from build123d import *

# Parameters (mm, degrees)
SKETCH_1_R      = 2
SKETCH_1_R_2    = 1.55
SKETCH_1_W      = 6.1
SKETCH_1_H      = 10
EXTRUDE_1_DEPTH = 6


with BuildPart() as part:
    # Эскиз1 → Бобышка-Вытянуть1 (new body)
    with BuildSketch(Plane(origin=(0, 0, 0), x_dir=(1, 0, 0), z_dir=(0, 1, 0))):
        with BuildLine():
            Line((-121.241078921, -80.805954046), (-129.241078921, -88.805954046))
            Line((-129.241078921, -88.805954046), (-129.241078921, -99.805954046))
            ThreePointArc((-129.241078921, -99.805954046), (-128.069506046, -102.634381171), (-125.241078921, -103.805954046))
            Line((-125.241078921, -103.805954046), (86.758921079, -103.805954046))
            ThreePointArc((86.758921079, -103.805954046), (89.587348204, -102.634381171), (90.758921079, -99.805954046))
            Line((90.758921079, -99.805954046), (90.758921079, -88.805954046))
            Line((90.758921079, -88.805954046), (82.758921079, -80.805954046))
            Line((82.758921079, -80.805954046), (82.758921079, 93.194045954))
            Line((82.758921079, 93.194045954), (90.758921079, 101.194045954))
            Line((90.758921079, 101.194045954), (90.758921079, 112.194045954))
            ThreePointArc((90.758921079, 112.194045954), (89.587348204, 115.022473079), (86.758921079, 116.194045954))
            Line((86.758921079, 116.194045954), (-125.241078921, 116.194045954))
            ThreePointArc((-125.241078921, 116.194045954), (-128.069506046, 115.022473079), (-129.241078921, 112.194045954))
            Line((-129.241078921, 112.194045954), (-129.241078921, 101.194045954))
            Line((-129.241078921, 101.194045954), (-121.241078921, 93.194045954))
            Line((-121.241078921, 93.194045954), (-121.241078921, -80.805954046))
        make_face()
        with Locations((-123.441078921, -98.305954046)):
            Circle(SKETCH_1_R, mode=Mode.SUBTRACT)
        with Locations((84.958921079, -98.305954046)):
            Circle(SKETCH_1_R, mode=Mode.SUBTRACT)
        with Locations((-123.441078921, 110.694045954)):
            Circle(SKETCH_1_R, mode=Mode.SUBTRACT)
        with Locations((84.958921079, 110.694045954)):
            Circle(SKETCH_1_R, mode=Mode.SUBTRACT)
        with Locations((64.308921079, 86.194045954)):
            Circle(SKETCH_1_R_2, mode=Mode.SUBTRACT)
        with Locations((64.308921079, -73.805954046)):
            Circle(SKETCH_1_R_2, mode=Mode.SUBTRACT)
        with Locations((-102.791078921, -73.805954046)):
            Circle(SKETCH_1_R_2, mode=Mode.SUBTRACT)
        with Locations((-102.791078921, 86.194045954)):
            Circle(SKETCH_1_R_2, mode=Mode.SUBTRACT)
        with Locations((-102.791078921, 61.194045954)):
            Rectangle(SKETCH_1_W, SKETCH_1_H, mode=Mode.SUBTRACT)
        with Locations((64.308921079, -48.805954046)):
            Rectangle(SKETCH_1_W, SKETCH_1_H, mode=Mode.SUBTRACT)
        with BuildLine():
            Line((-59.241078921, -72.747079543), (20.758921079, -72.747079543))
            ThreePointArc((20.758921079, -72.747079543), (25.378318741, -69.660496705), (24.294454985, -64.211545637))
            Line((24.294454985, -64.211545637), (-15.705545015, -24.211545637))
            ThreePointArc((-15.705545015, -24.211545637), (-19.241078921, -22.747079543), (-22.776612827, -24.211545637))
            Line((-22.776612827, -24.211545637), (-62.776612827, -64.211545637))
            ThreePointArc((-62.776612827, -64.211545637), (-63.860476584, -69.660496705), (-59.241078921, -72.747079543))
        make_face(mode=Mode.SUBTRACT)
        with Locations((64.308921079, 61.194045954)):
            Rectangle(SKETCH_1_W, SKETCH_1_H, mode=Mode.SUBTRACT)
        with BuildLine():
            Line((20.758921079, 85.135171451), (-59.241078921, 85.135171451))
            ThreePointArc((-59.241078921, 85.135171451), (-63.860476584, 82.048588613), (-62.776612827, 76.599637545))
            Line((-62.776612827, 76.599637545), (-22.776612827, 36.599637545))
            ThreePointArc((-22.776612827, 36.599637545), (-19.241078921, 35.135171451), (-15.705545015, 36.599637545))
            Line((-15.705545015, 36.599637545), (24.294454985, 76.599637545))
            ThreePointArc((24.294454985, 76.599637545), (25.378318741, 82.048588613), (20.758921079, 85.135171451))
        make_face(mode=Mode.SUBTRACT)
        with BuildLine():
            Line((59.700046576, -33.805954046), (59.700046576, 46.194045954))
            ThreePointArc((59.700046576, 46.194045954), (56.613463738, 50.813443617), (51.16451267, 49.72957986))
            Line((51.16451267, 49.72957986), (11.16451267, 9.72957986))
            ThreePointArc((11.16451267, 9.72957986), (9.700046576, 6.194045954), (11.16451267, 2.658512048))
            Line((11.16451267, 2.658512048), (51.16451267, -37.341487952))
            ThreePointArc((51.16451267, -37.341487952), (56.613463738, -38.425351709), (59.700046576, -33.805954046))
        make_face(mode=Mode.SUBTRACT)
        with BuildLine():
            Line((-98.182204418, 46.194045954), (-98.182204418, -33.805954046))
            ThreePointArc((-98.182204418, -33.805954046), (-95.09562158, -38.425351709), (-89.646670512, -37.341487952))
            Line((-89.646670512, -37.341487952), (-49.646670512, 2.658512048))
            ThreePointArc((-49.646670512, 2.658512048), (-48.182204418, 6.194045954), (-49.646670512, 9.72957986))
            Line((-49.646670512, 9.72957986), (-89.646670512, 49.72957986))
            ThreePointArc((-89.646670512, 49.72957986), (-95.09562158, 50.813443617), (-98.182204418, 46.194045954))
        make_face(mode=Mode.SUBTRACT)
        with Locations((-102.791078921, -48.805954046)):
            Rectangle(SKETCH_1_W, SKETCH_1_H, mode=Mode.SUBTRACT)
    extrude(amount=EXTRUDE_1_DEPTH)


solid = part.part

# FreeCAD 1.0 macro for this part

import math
import FreeCAD as App
import Part
import Sketcher
from FreeCAD import Vector
Q = App.Units.Quantity


def add_polygon(sketch, points):
    """Adds a closed chain of lines whose ends are joined by coincident constraints."""
    first, n = sketch.GeometryCount, len(points)
    for a, b in zip(points, points[1:] + points[:1]):
        sketch.addGeometry(Part.LineSegment(App.Vector(*a, 0), App.Vector(*b, 0)), False)
    for i in range(n):
        sketch.addConstraint(Sketcher.Constraint("Coincident", first + i, 2, first + (i + 1) % n, 1))

doc = App.newDocument("Part")
body = doc.addObject("PartDesign::Body", "Body")

# Sketch on XZ plane
sketch1 = doc.addObject("Sketcher::SketchObject", "Sketch")
body.addObject(sketch1)
sketch1.AttachmentSupport = (doc.XZ_Plane, [""])
sketch1.MapMode = "FlatFace"
sketch1.addGeometry(Part.LineSegment(Vector(-121.2, 80.8, 0), Vector(-129.2, 88.8, 0)), False)  # 0
sketch1.addGeometry(Part.LineSegment(Vector(-129.2, 88.8, 0), Vector(-129.2, 99.8, 0)), False)  # 1
sketch1.addGeometry(Part.ArcOfCircle(Part.Circle(Vector(-125.2, 99.8, 0), Vector(0, 0, 1), 4), math.radians(90), math.radians(180)), False)  # 2
sketch1.addGeometry(Part.LineSegment(Vector(-125.2, 103.8, 0), Vector(86.8, 103.8, 0)), False)  # 3
sketch1.addGeometry(Part.ArcOfCircle(Part.Circle(Vector(86.8, 99.8, 0), Vector(0, 0, 1), 4), math.radians(0), math.radians(90)), False)  # 4
sketch1.addGeometry(Part.LineSegment(Vector(90.8, 99.8, 0), Vector(90.8, 88.8, 0)), False)  # 5
sketch1.addGeometry(Part.LineSegment(Vector(90.8, 88.8, 0), Vector(82.8, 80.8, 0)), False)  # 6
sketch1.addGeometry(Part.LineSegment(Vector(82.8, 80.8, 0), Vector(82.8, -93.2, 0)), False)  # 7
sketch1.addGeometry(Part.LineSegment(Vector(82.8, -93.2, 0), Vector(90.8, -101.2, 0)), False)  # 8
sketch1.addGeometry(Part.LineSegment(Vector(90.8, -101.2, 0), Vector(90.8, -112.2, 0)), False)  # 9
sketch1.addGeometry(Part.ArcOfCircle(Part.Circle(Vector(86.8, -112.2, 0), Vector(0, 0, 1), 4), math.radians(-90), math.radians(0)), False)  # 10
sketch1.addGeometry(Part.LineSegment(Vector(86.8, -116.2, 0), Vector(-125.2, -116.2, 0)), False)  # 11
sketch1.addGeometry(Part.ArcOfCircle(Part.Circle(Vector(-125.2, -112.2, 0), Vector(0, 0, 1), 4), math.radians(180), math.radians(270)), False)  # 12
sketch1.addGeometry(Part.LineSegment(Vector(-129.2, -112.2, 0), Vector(-129.2, -101.2, 0)), False)  # 13
sketch1.addGeometry(Part.LineSegment(Vector(-129.2, -101.2, 0), Vector(-121.2, -93.2, 0)), False)  # 14
sketch1.addGeometry(Part.LineSegment(Vector(-121.2, -93.2, 0), Vector(-121.2, 80.8, 0)), False)  # 15
sketch1.addGeometry(Part.Circle(Vector(-123.4, 98.3, 0), Vector(0, 0, 1), 2), False)  # 16
sketch1.addGeometry(Part.Circle(Vector(-102.8, 73.8, 0), Vector(0, 0, 1), 1.6), False)  # 17
add_polygon(sketch1, [(-99.7, 53.8), (-105.8, 53.8), (-105.8, 43.8), (-99.7, 43.8)])  # lines 18-21
sketch1.addGeometry(Part.LineSegment(Vector(20.8, 72.7, 0), Vector(-59.2, 72.7, 0)), False)  # 22
sketch1.addGeometry(Part.ArcOfCircle(Part.Circle(Vector(-59.2, 67.7, 0), Vector(0, 0, 1), 5), math.radians(90), math.radians(225)), False)  # 23
sketch1.addGeometry(Part.LineSegment(Vector(-62.8, 64.2, 0), Vector(-22.8, 24.2, 0)), False)  # 24
sketch1.addGeometry(Part.ArcOfCircle(Part.Circle(Vector(-19.2, 27.7, 0), Vector(0, 0, 1), 5), math.radians(-135), math.radians(-45)), False)  # 25
sketch1.addGeometry(Part.LineSegment(Vector(-15.7, 24.2, 0), Vector(24.3, 64.2, 0)), False)  # 26
sketch1.addGeometry(Part.ArcOfCircle(Part.Circle(Vector(20.8, 67.7, 0), Vector(0, 0, 1), 5), math.radians(-45), math.radians(90)), False)  # 27
sketch1.addGeometry(Part.Circle(Vector(85, 98.3, 0), Vector(0, 0, 1), 2), False)  # 28
sketch1.addGeometry(Part.Circle(Vector(64.3, 73.8, 0), Vector(0, 0, 1), 1.6), False)  # 29
add_polygon(sketch1, [(67.4, 53.8), (61.3, 53.8), (61.3, 43.8), (67.4, 43.8)])  # lines 30-33
sketch1.addGeometry(Part.LineSegment(Vector(-98.2, 33.8, 0), Vector(-98.2, -46.2, 0)), False)  # 34
sketch1.addGeometry(Part.ArcOfCircle(Part.Circle(Vector(-93.2, -46.2, 0), Vector(0, 0, 1), 5), math.radians(180), math.radians(315)), False)  # 35
sketch1.addGeometry(Part.LineSegment(Vector(-89.6, -49.7, 0), Vector(-49.6, -9.7, 0)), False)  # 36
sketch1.addGeometry(Part.ArcOfCircle(Part.Circle(Vector(-53.2, -6.2, 0), Vector(0, 0, 1), 5), math.radians(-45), math.radians(45)), False)  # 37
sketch1.addGeometry(Part.LineSegment(Vector(-49.6, -2.7, 0), Vector(-89.6, 37.3, 0)), False)  # 38
sketch1.addGeometry(Part.ArcOfCircle(Part.Circle(Vector(-93.2, 33.8, 0), Vector(0, 0, 1), 5), math.radians(45), math.radians(180)), False)  # 39
add_polygon(sketch1, [(-99.7, -56.2), (-105.8, -56.2), (-105.8, -66.2), (-99.7, -66.2)])  # lines 40-43
sketch1.addGeometry(Part.Circle(Vector(-102.8, -86.2, 0), Vector(0, 0, 1), 1.6), False)  # 44
sketch1.addGeometry(Part.Circle(Vector(-123.4, -110.7, 0), Vector(0, 0, 1), 2), False)  # 45
sketch1.addGeometry(Part.LineSegment(Vector(-59.2, -85.1, 0), Vector(20.8, -85.1, 0)), False)  # 46
sketch1.addGeometry(Part.ArcOfCircle(Part.Circle(Vector(20.8, -80.1, 0), Vector(0, 0, 1), 5), math.radians(-90), math.radians(45)), False)  # 47
sketch1.addGeometry(Part.LineSegment(Vector(24.3, -76.6, 0), Vector(-15.7, -36.6, 0)), False)  # 48
sketch1.addGeometry(Part.ArcOfCircle(Part.Circle(Vector(-19.2, -40.1, 0), Vector(0, 0, 1), 5), math.radians(45), math.radians(135)), False)  # 49
sketch1.addGeometry(Part.LineSegment(Vector(-22.8, -36.6, 0), Vector(-62.8, -76.6, 0)), False)  # 50
sketch1.addGeometry(Part.ArcOfCircle(Part.Circle(Vector(-59.2, -80.1, 0), Vector(0, 0, 1), 5), math.radians(135), math.radians(270)), False)  # 51
sketch1.addGeometry(Part.LineSegment(Vector(59.7, -46.2, 0), Vector(59.7, 33.8, 0)), False)  # 52
sketch1.addGeometry(Part.ArcOfCircle(Part.Circle(Vector(54.7, 33.8, 0), Vector(0, 0, 1), 5), math.radians(0), math.radians(135)), False)  # 53
sketch1.addGeometry(Part.LineSegment(Vector(51.2, 37.3, 0), Vector(11.2, -2.7, 0)), False)  # 54
sketch1.addGeometry(Part.ArcOfCircle(Part.Circle(Vector(14.7, -6.2, 0), Vector(0, 0, 1), 5), math.radians(135), math.radians(225)), False)  # 55
sketch1.addGeometry(Part.LineSegment(Vector(11.2, -9.7, 0), Vector(51.2, -49.7, 0)), False)  # 56
sketch1.addGeometry(Part.ArcOfCircle(Part.Circle(Vector(54.7, -46.2, 0), Vector(0, 0, 1), 5), math.radians(-135), math.radians(0)), False)  # 57
add_polygon(sketch1, [(67.4, -56.2), (61.3, -56.2), (61.3, -66.2), (67.4, -66.2)])  # lines 58-61
sketch1.addGeometry(Part.Circle(Vector(64.3, -86.2, 0), Vector(0, 0, 1), 1.6), False)  # 62
sketch1.addGeometry(Part.Circle(Vector(85, -110.7, 0), Vector(0, 0, 1), 2), False)  # 63
sketch1.addConstraint([
    Sketcher.Constraint("Coincident", 0, 2, 1, 1),
    Sketcher.Constraint("Tangent", 1, 2, 2, 2),
    Sketcher.Constraint("Tangent", 2, 1, 3, 1),
    Sketcher.Constraint("Tangent", 3, 2, 4, 2),
    Sketcher.Constraint("Tangent", 4, 1, 5, 1),
    Sketcher.Constraint("Coincident", 5, 2, 6, 1),
    Sketcher.Constraint("Coincident", 6, 2, 7, 1),
    Sketcher.Constraint("Coincident", 7, 2, 8, 1),
    Sketcher.Constraint("Coincident", 8, 2, 9, 1),
    Sketcher.Constraint("Tangent", 9, 2, 10, 2),
    Sketcher.Constraint("Tangent", 10, 1, 11, 1),
    Sketcher.Constraint("Tangent", 11, 2, 12, 2),
    Sketcher.Constraint("Tangent", 12, 1, 13, 1),
    Sketcher.Constraint("Coincident", 13, 2, 14, 1),
    Sketcher.Constraint("Coincident", 14, 2, 15, 1),
    Sketcher.Constraint("Coincident", 15, 2, 0, 1),
    Sketcher.Constraint("Tangent", 22, 2, 23, 1),
    Sketcher.Constraint("Tangent", 23, 2, 24, 1),
    Sketcher.Constraint("Tangent", 24, 2, 25, 1),
    Sketcher.Constraint("Tangent", 25, 2, 26, 1),
    Sketcher.Constraint("Tangent", 26, 2, 27, 1),
    Sketcher.Constraint("Tangent", 27, 2, 22, 1),
    Sketcher.Constraint("Tangent", 34, 2, 35, 1),
    Sketcher.Constraint("Tangent", 35, 2, 36, 1),
    Sketcher.Constraint("Tangent", 36, 2, 37, 1),
    Sketcher.Constraint("Tangent", 37, 2, 38, 1),
    Sketcher.Constraint("Tangent", 38, 2, 39, 1),
    Sketcher.Constraint("Tangent", 39, 2, 34, 1),
    Sketcher.Constraint("Tangent", 46, 2, 47, 1),
    Sketcher.Constraint("Tangent", 47, 2, 48, 1),
    Sketcher.Constraint("Tangent", 48, 2, 49, 1),
    Sketcher.Constraint("Tangent", 49, 2, 50, 1),
    Sketcher.Constraint("Tangent", 50, 2, 51, 1),
    Sketcher.Constraint("Tangent", 51, 2, 46, 1),
    Sketcher.Constraint("Tangent", 52, 2, 53, 1),
    Sketcher.Constraint("Tangent", 53, 2, 54, 1),
    Sketcher.Constraint("Tangent", 54, 2, 55, 1),
    Sketcher.Constraint("Tangent", 55, 2, 56, 1),
    Sketcher.Constraint("Tangent", 56, 2, 57, 1),
    Sketcher.Constraint("Tangent", 57, 2, 52, 1),
    Sketcher.Constraint("Vertical", 1),
    Sketcher.Constraint("Horizontal", 3),
    Sketcher.Constraint("Vertical", 5),
    Sketcher.Constraint("Vertical", 7),
    Sketcher.Constraint("Vertical", 9),
    Sketcher.Constraint("Horizontal", 11),
    Sketcher.Constraint("Vertical", 13),
    Sketcher.Constraint("Vertical", 15),
    Sketcher.Constraint("Horizontal", 18),
    Sketcher.Constraint("Vertical", 19),
    Sketcher.Constraint("Horizontal", 20),
    Sketcher.Constraint("Vertical", 21),
    Sketcher.Constraint("Horizontal", 22),
    Sketcher.Constraint("Horizontal", 30),
    Sketcher.Constraint("Vertical", 31),
    Sketcher.Constraint("Horizontal", 32),
    Sketcher.Constraint("Vertical", 33),
    Sketcher.Constraint("Vertical", 34),
    Sketcher.Constraint("Horizontal", 40),
    Sketcher.Constraint("Vertical", 41),
    Sketcher.Constraint("Horizontal", 42),
    Sketcher.Constraint("Vertical", 43),
    Sketcher.Constraint("Horizontal", 46),
    Sketcher.Constraint("Vertical", 52),
    Sketcher.Constraint("Horizontal", 58),
    Sketcher.Constraint("Vertical", 59),
    Sketcher.Constraint("Horizontal", 60),
    Sketcher.Constraint("Vertical", 61),
    Sketcher.Constraint("Equal", 2, 4),
    Sketcher.Constraint("Equal", 4, 10),
    Sketcher.Constraint("Equal", 10, 12),
    Sketcher.Constraint("Equal", 23, 25),
    Sketcher.Constraint("Equal", 25, 27),
    Sketcher.Constraint("Equal", 16, 28),
    Sketcher.Constraint("Equal", 17, 29),
    Sketcher.Constraint("Equal", 27, 35),
    Sketcher.Constraint("Equal", 35, 37),
    Sketcher.Constraint("Equal", 37, 39),
    Sketcher.Constraint("Equal", 29, 44),
    Sketcher.Constraint("Equal", 28, 45),
    Sketcher.Constraint("Equal", 39, 47),
    Sketcher.Constraint("Equal", 47, 49),
    Sketcher.Constraint("Equal", 49, 51),
    Sketcher.Constraint("Equal", 51, 53),
    Sketcher.Constraint("Equal", 53, 55),
    Sketcher.Constraint("Equal", 55, 57),
    Sketcher.Constraint("Equal", 44, 62),
    Sketcher.Constraint("Equal", 45, 63),
    Sketcher.Constraint("Perpendicular", 0, 6),
    Sketcher.Constraint("Perpendicular", 6, 8),
    Sketcher.Constraint("Perpendicular", 8, 14),
    Sketcher.Constraint("Perpendicular", 14, 24),
    Sketcher.Constraint("Perpendicular", 24, 26),
    Sketcher.Constraint("Parallel", 26, 36),
    Sketcher.Constraint("Perpendicular", 36, 38),
    Sketcher.Constraint("Parallel", 38, 48),
    Sketcher.Constraint("Perpendicular", 48, 50),
    Sketcher.Constraint("Parallel", 50, 54),
    Sketcher.Constraint("Perpendicular", 54, 56),
    Sketcher.Constraint("Horizontal", 16, 3, 28, 3),
    Sketcher.Constraint("Horizontal", 17, 3, 29, 3),
    Sketcher.Constraint("Horizontal", 39, 3, 53, 3),
    Sketcher.Constraint("Horizontal", 37, 3, 55, 3),
    Sketcher.Constraint("Horizontal", 35, 3, 57, 3),
    Sketcher.Constraint("Horizontal", 44, 3, 62, 3),
    Sketcher.Constraint("Horizontal", 45, 3, 63, 3),
    Sketcher.Constraint("Horizontal", 0, 2, 5, 2),
    Sketcher.Constraint("Horizontal", 8, 2, 13, 2),
    Sketcher.Constraint("Horizontal", 7, 2, 14, 2),
    Sketcher.Constraint("Horizontal", 6, 2, 15, 2),
    Sketcher.Constraint("Horizontal", 21, 2, 30, 2),
    Sketcher.Constraint("Horizontal", 20, 2, 31, 2),
    Sketcher.Constraint("Horizontal", 43, 2, 58, 2),
    Sketcher.Constraint("Horizontal", 42, 2, 59, 2),
    Sketcher.Constraint("Vertical", 4, 3, 10, 3),
    Sketcher.Constraint("Vertical", 17, 3, 44, 3),
    Sketcher.Constraint("Vertical", 16, 3, 45, 3),
    Sketcher.Constraint("Vertical", 27, 3, 47, 3),
    Sketcher.Constraint("Vertical", 25, 3, 49, 3),
    Sketcher.Constraint("Vertical", 29, 3, 62, 3),
    Sketcher.Constraint("Vertical", 28, 3, 63, 3),
    Sketcher.Constraint("Vertical", 19, 2, 40, 2),
    Sketcher.Constraint("Vertical", 21, 2, 42, 2),
    Sketcher.Constraint("Vertical", 31, 2, 58, 2),
    Sketcher.Constraint("Vertical", 33, 2, 60, 2),
    Sketcher.Constraint("Equal", 20, 30),
    Sketcher.Constraint("Equal", 5, 9),
    Sketcher.Constraint("Equal", 46, 34),
    Sketcher.Constraint("Equal", 33, 41),
    Sketcher.Constraint("Diameter", 16, Q("4 mm")),
    Sketcher.Constraint("Radius", 2, Q("4 mm")),
    Sketcher.Constraint("Radius", 23, Q("5 mm")),
    Sketcher.Constraint("Diameter", 17, Q("3.1 mm")),
    Sketcher.Constraint("DistanceX", 3, 1, 3, 2, Q("212 mm")),
    Sketcher.Constraint("DistanceX", 22, 2, 22, 1, Q("80 mm")),
    Sketcher.Constraint("DistanceY", 1, 1, 1, 2, Q("11 mm")),
    Sketcher.Constraint("DistanceY", 7, 2, 7, 1, Q("174 mm")),
    Sketcher.Constraint("DistanceY", 19, 2, 19, 1, Q("10 mm")),
    Sketcher.Constraint("DistanceX", 18, 2, 18, 1, Q("6.1 mm")),
    Sketcher.Constraint("Distance", 0, Q("11.313708 mm")),
    Sketcher.Constraint("DistanceX", 2, 3, -1, 1, Q("125.241079 mm")),
    Sketcher.Constraint("DistanceX", 16, 3, -1, 1, Q("123.441079 mm")),
    Sketcher.Constraint("DistanceX", 17, 3, -1, 1, Q("102.791079 mm")),
    Sketcher.Constraint("DistanceX", 23, 3, -1, 1, Q("59.241079 mm")),
    Sketcher.Constraint("DistanceY", -1, 1, 23, 3, Q("67.74708 mm")),
    Sketcher.Constraint("DistanceX", -1, 1, 28, 3, Q("84.958921 mm")),
    Sketcher.Constraint("DistanceX", -1, 1, 29, 3, Q("64.308921 mm")),
    Sketcher.Constraint("DistanceY", 47, 3, -1, 1, Q("80.135171 mm")),
    Sketcher.Constraint("DistanceX", 18, 2, -1, 1, Q("105.841079 mm")),
    Sketcher.Constraint("DistanceX", -1, 1, 30, 2, Q("61.258921 mm")),
    Sketcher.Constraint("DistanceX", 35, 2, -1, 1, Q("89.646671 mm")),
    Sketcher.Constraint("DistanceY", 35, 2, -1, 1, Q("49.72958 mm")),
    Sketcher.Constraint("DistanceY", -1, 1, 2, 3, Q("99.805954 mm")),
    Sketcher.Constraint("DistanceY", -1, 1, 16, 3, Q("98.305954 mm")),
    Sketcher.Constraint("DistanceY", -1, 1, 17, 3, Q("73.805954 mm")),
    Sketcher.Constraint("DistanceY", 44, 3, -1, 1, Q("86.194046 mm")),
    Sketcher.Constraint("DistanceY", 45, 3, -1, 1, Q("110.694046 mm")),
    Sketcher.Constraint("DistanceX", -1, 1, 53, 3, Q("54.700047 mm")),
    Sketcher.Constraint("DistanceY", -1, 1, 18, 2, Q("53.805954 mm")),
    Sketcher.Constraint("DistanceY", 40, 2, -1, 1, Q("56.194046 mm")),
])
pad1 = doc.addObject("PartDesign::Pad", "Pad")
body.addObject(pad1)
pad1.Profile = sketch1
pad1.Length = 6
pad1.Reversed = True

doc.recompute()
